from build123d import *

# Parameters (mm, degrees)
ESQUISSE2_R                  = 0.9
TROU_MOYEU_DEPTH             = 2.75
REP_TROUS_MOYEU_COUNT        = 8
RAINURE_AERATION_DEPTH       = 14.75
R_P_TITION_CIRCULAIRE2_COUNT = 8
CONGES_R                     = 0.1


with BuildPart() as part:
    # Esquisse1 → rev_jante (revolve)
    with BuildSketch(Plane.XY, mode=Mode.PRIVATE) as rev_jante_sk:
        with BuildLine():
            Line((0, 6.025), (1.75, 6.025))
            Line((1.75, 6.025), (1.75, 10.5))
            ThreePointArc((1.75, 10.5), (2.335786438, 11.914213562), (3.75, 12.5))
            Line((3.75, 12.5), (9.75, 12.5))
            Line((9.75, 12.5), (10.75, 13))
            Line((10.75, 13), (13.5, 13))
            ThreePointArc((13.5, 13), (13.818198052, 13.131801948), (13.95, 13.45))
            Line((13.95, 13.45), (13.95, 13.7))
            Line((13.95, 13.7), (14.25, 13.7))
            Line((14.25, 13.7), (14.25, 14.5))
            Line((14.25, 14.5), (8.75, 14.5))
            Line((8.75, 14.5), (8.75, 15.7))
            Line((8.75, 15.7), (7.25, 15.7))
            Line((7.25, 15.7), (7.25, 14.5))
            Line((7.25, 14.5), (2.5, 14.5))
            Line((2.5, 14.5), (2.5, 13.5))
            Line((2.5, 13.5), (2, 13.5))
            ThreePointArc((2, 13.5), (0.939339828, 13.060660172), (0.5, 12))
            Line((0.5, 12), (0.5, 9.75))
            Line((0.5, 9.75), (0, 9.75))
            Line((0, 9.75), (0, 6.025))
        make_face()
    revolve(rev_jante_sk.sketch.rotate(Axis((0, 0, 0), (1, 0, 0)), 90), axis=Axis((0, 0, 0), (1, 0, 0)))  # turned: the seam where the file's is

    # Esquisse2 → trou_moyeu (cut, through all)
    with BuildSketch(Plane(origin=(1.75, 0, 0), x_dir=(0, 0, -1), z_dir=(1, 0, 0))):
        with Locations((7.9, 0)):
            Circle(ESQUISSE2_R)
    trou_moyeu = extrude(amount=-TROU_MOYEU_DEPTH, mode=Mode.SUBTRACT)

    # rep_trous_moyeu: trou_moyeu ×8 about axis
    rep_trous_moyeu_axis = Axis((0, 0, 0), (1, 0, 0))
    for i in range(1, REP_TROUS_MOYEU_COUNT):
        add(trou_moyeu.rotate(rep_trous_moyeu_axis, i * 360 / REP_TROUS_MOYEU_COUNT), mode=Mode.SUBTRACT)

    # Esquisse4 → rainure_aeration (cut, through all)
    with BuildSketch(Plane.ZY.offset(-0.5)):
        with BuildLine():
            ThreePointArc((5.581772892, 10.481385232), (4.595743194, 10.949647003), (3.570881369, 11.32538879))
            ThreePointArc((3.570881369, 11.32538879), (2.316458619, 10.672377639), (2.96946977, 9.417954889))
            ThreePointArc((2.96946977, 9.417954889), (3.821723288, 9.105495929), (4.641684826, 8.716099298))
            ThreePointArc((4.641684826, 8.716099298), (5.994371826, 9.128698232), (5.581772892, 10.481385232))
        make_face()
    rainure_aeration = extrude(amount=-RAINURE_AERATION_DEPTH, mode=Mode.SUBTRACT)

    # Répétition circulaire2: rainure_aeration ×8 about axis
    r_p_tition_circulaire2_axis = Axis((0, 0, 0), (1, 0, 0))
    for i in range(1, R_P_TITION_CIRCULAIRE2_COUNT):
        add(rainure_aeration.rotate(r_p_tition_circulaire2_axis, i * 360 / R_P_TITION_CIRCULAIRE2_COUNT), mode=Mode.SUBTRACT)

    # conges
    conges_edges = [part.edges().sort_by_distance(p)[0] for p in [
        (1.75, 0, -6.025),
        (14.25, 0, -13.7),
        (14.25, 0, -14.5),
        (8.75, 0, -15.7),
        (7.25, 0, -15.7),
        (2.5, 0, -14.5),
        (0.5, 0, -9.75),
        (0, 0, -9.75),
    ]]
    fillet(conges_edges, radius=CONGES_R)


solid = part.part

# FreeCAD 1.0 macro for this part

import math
import FreeCAD as App
import Part
import Sketcher

V = App.Vector


def edges_at(feature, points):
    """Names of the edges that pass closest to the given points."""
    edges = feature.Shape.Edges
    near = lambda p: min(range(len(edges)), key=lambda i: edges[i].distToShape(Part.Vertex(*p))[0])
    return sorted({f"Edge{near(p) + 1}" for p in points})

doc = App.newDocument("Part")
params = doc.addObject("Spreadsheet::Sheet", "Params")
for row, (alias, value) in enumerate([
    ("sketch1_radius", "2 mm"),
    ("sketch1_radius2", "1.5 mm"),
    ("sketch1_width", "6 mm"),
    ("sketch1_height", "1 mm"),
    ("sketch1_radius3", "0.45 mm"),
    ("revolution_angle", "360 deg"),
    ("sketch2_diameter", "1.8 mm"),
    ("sketch3_radius", "1 mm"),
    ("fillet_radius", "0.1 mm"),
], start=1):
    params.set(f"A{row}", alias)
    params.set(f"B{row}", "=" + value)
    params.setAlias(f"B{row}", alias)

body = doc.addObject("PartDesign::Body", "Body")

sketch1 = doc.addObject("Sketcher::SketchObject", "Sketch")
body.addObject(sketch1)
sketch1.AttachmentSupport = (doc.XY_Plane, [""])
sketch1.MapMode = "FlatFace"
sketch1.addGeometry([
    Part.LineSegment(V(0, 6.03, 0), V(1.75, 6.03, 0)),
    Part.LineSegment(V(1.75, 6.03, 0), V(1.75, 10.5, 0)),
    Part.ArcOfCircle(Part.Circle(V(3.75, 10.5, 0), V(0, 0, 1), 2), math.radians(90), math.radians(180)),
    Part.LineSegment(V(3.75, 12.5, 0), V(9.75, 12.5, 0)),
    Part.LineSegment(V(9.75, 12.5, 0), V(10.75, 13, 0)),
    Part.LineSegment(V(10.75, 13, 0), V(13.5, 13, 0)),
    Part.ArcOfCircle(Part.Circle(V(13.5, 13.45, 0), V(0, 0, 1), 0.45), math.radians(-90), math.radians(0)),
    Part.LineSegment(V(13.95, 13.45, 0), V(13.95, 13.7, 0)),
    Part.LineSegment(V(13.95, 13.7, 0), V(14.25, 13.7, 0)),
    Part.LineSegment(V(14.25, 13.7, 0), V(14.25, 14.5, 0)),
    Part.LineSegment(V(14.25, 14.5, 0), V(8.75, 14.5, 0)),
    Part.LineSegment(V(8.75, 14.5, 0), V(8.75, 15.7, 0)),
    Part.LineSegment(V(8.75, 15.7, 0), V(7.25, 15.7, 0)),
    Part.LineSegment(V(7.25, 15.7, 0), V(7.25, 14.5, 0)),
    Part.LineSegment(V(7.25, 14.5, 0), V(2.5, 14.5, 0)),
    Part.LineSegment(V(2.5, 14.5, 0), V(2.5, 13.5, 0)),
    Part.LineSegment(V(2.5, 13.5, 0), V(2, 13.5, 0)),
    Part.ArcOfCircle(Part.Circle(V(2, 12, 0), V(0, 0, 1), 1.5), math.radians(90), math.radians(180)),
    Part.LineSegment(V(0.5, 12, 0), V(0.5, 9.75, 0)),
    Part.LineSegment(V(0.5, 9.75, 0), V(0, 9.75, 0)),
    Part.LineSegment(V(0, 9.75, 0), V(0, 6.03, 0)),
], False)
sketch1.addConstraint([
    Sketcher.Constraint("Coincident", 0, 2, 1, 1),
    Sketcher.Constraint("Tangent", 1, 2, 2, 2),
    Sketcher.Constraint("Tangent", 2, 1, 3, 1),
    Sketcher.Constraint("Coincident", 3, 2, 4, 1),
    Sketcher.Constraint("Coincident", 4, 2, 5, 1),
    Sketcher.Constraint("Tangent", 5, 2, 6, 1),
    Sketcher.Constraint("Tangent", 6, 2, 7, 1),
    Sketcher.Constraint("Coincident", 7, 2, 8, 1),
    Sketcher.Constraint("Coincident", 8, 2, 9, 1),
    Sketcher.Constraint("Coincident", 9, 2, 10, 1),
    Sketcher.Constraint("Coincident", 10, 2, 11, 1),
    Sketcher.Constraint("Coincident", 11, 2, 12, 1),
    Sketcher.Constraint("Coincident", 12, 2, 13, 1),
    Sketcher.Constraint("Coincident", 13, 2, 14, 1),
    Sketcher.Constraint("Coincident", 14, 2, 15, 1),
    Sketcher.Constraint("Coincident", 15, 2, 16, 1),
    Sketcher.Constraint("Tangent", 16, 2, 17, 1),
    Sketcher.Constraint("Tangent", 17, 2, 18, 1),
    Sketcher.Constraint("Coincident", 18, 2, 19, 1),
    Sketcher.Constraint("Coincident", 19, 2, 20, 1),
    Sketcher.Constraint("Coincident", 20, 2, 0, 1),
    Sketcher.Constraint("Horizontal", 0),
    Sketcher.Constraint("Vertical", 1),
    Sketcher.Constraint("Horizontal", 3),
    Sketcher.Constraint("Horizontal", 5),
    Sketcher.Constraint("Vertical", 7),
    Sketcher.Constraint("Horizontal", 8),
    Sketcher.Constraint("Vertical", 9),
    Sketcher.Constraint("Horizontal", 10),
    Sketcher.Constraint("Vertical", 11),
    Sketcher.Constraint("Horizontal", 12),
    Sketcher.Constraint("Vertical", 13),
    Sketcher.Constraint("Horizontal", 14),
    Sketcher.Constraint("Vertical", 15),
    Sketcher.Constraint("Horizontal", 16),
    Sketcher.Constraint("Vertical", 18),
    Sketcher.Constraint("Horizontal", 19),
    Sketcher.Constraint("Vertical", 20),
    Sketcher.Constraint("PointOnObject", 19, 2, -2),
    Sketcher.Constraint("Horizontal", 10, 2, 13, 2),
    Sketcher.Constraint("Equal", 16, 19),
    Sketcher.Constraint("Radius", 2, 2.0),
    Sketcher.Constraint("Radius", 17, 1.5),
    Sketcher.Constraint("DistanceX", 3, 1, 3, 2, 6.0),
    Sketcher.Constraint("DistanceY", 15, 2, 15, 1, 1.0),
    Sketcher.Constraint("Radius", 6, 0.45),
    Sketcher.Constraint("DistanceX", 8, 1, 8, 2, 0.3),
    Sketcher.Constraint("DistanceX", 10, 2, 10, 1, 5.5),
    Sketcher.Constraint("DistanceX", 12, 2, 12, 1, 1.5),
    Sketcher.Constraint("DistanceX", 16, 2, 16, 1, 0.5),
    Sketcher.Constraint("DistanceY", 9, 1, 9, 2, 0.8),
    Sketcher.Constraint("DistanceY", 11, 1, 11, 2, 1.2),
    Sketcher.Constraint("DistanceY", -1, 1, 17, 3, 12.0),
    Sketcher.Constraint("DistanceY", -1, 1, 4, 2, 13.0),
    Sketcher.Constraint("DistanceX", 3, 2, 4, 2, 1.0),
    Sketcher.Constraint("DistanceX", 10, 2, 3, 2, 1.0),
    Sketcher.Constraint("DistanceY", 3, 2, 10, 2, 2.0),
    Sketcher.Constraint("DistanceX", 0, 1, 0, 2, 1.75),
    Sketcher.Constraint("DistanceY", 18, 2, 18, 1, 2.25),
    Sketcher.Constraint("DistanceY", 1, 1, 1, 2, 4.475),
])
sketch1.setExpression("Constraints[41]", "Params.sketch1_radius")
sketch1.setExpression("Constraints[42]", "Params.sketch1_radius2")
sketch1.setExpression("Constraints[43]", "Params.sketch1_width")
sketch1.setExpression("Constraints[44]", "Params.sketch1_height")
sketch1.setExpression("Constraints[45]", "Params.sketch1_radius3")
revolution = doc.addObject("PartDesign::Revolution", "Revolution")
body.addObject(revolution)
revolution.Profile = sketch1
revolution.ReferenceAxis = (sketch1, ["H_Axis"])
revolution.setExpression("Angle", "Params.revolution_angle")

sketch2 = doc.addObject("Sketcher::SketchObject", "Sketch001")
body.addObject(sketch2)
sketch2.AttachmentSupport = (doc.YZ_Plane, [""])
sketch2.MapMode = "FlatFace"
sketch2.AttachmentOffset = App.Placement(V(0, 0, 1.75), App.Rotation())
sketch2.addGeometry(Part.Circle(V(0, -7.9, 0), V(0, 0, 1), 0.9), False)
sketch2.addConstraint([
    Sketcher.Constraint("PointOnObject", 0, 3, -2),
    Sketcher.Constraint("Diameter", 0, 1.8),
    Sketcher.Constraint("DistanceY", 0, 3, -1, 1, 7.9),
])
sketch2.setExpression("Constraints[1]", "Params.sketch2_diameter")
pocket1 = doc.addObject("PartDesign::Pocket", "Pocket")
body.addObject(pocket1)
pocket1.Profile = sketch2
pocket1.Type = "ThroughAll"
doc.recompute()

polarpattern = doc.addObject("PartDesign::PolarPattern", "PolarPattern")
body.addObject(polarpattern)
polarpattern.Originals = [pocket1]
polarpattern.Axis = (doc.X_Axis, [""])
polarpattern.Angle = 360
polarpattern.Occurrences = 8
body.Tip = polarpattern

sketch3 = doc.addObject("Sketcher::SketchObject", "Sketch002")
body.addObject(sketch3)
sketch3.AttachmentSupport = (doc.YZ_Plane, [""])
sketch3.MapMode = "FlatFace"
sketch3.AttachmentOffset = App.Placement(V(0, 0, 0.5), App.Rotation())
sketch3.addGeometry([
    Part.ArcOfCircle(Part.Circle(V(0, 0, 0), V(0, 0, 1), 11.9), math.radians(17.5), math.radians(28.04)),
    Part.ArcOfCircle(Part.Circle(V(10.4, 3.3, 0), V(0, 0, 1), 1), math.radians(-162), math.radians(17)),
    Part.ArcOfCircle(Part.Circle(V(0, 0, 0), V(0, 0, 1), 9.9), math.radians(17.5), math.radians(28.04)),
    Part.ArcOfCircle(Part.Circle(V(9.6, 5.1, 0), V(0, 0, 1), 1), math.radians(28), math.radians(208)),
], False)
sketch3.addConstraint([
    Sketcher.Constraint("Tangent", 0, 1, 1, 2),
    Sketcher.Constraint("Tangent", 1, 1, 2, 1),
    Sketcher.Constraint("Tangent", 2, 2, 3, 2),
    Sketcher.Constraint("Tangent", 3, 1, 0, 2),
    Sketcher.Constraint("Coincident", 0, 3, -1, 1),
    Sketcher.Constraint("Coincident", 2, 3, -1, 1),
    Sketcher.Constraint("Radius", 1, 1.0),
    Sketcher.Constraint("Radius", 0, 11.875),
    Sketcher.Constraint("DistanceX", -1, 1, 2, 2, 8.716099),
    Sketcher.Constraint("DistanceX", -1, 1, 1, 3, 10.371672),
])
sketch3.setExpression("Constraints[6]", "Params.sketch3_radius")
pocket2 = doc.addObject("PartDesign::Pocket", "Pocket001")
body.addObject(pocket2)
pocket2.Profile = sketch3
pocket2.Type = "ThroughAll"
pocket2.Reversed = True
doc.recompute()

polarpattern2 = doc.addObject("PartDesign::PolarPattern", "PolarPattern001")
body.addObject(polarpattern2)
polarpattern2.Originals = [pocket2]
polarpattern2.Axis = (doc.X_Axis, [""])
polarpattern2.Angle = 360
polarpattern2.Occurrences = 8
body.Tip = polarpattern2
doc.recompute()

fillet = doc.addObject("PartDesign::Fillet", "Fillet")
body.addObject(fillet)
fillet.Base = (polarpattern2, edges_at(polarpattern2, [
    (1.75, 0, -6.025),
    (14.25, 0, -13.7),
    (14.25, 0, -14.5),
    (8.75, 0, -15.7),
    (7.25, 0, -15.7),
    (2.5, 0, -14.5),
    (0.5, 0, -9.75),
    (0, 0, -9.75),
]))
fillet.setExpression("Radius", "Params.fillet_radius")

doc.recompute()
